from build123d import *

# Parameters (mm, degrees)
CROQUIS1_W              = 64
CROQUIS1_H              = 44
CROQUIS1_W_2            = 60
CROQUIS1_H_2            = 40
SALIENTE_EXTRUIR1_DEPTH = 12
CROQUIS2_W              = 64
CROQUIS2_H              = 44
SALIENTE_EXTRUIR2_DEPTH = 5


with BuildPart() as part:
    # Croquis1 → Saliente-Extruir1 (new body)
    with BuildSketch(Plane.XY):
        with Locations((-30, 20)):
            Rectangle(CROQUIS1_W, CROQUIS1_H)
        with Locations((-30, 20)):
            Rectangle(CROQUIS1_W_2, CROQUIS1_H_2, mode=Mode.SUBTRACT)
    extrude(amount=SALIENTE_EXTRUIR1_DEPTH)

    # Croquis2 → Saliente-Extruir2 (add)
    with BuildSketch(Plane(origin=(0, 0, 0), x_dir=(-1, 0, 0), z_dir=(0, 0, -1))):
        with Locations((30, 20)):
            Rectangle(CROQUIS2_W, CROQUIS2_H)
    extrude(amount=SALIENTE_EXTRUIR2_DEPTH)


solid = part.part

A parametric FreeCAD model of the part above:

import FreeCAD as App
import Part
import Sketcher

V = App.Vector

doc = App.newDocument("Part")
body = doc.addObject("PartDesign::Body", "Body")

sketch1 = body.newObject("Sketcher::SketchObject", "Sketch")
sketch1.AttachmentSupport = (doc.getObject("XY_Plane"), [""])
sketch1.MapMode = "FlatFace"
sketch1.addGeometry([
    Part.LineSegment(V(-62, 42, 0), V(-62, -2, 0)),
    Part.LineSegment(V(-62, -2, 0), V(2, -2, 0)),
    Part.LineSegment(V(2, -2, 0), V(2, 42, 0)),
    Part.LineSegment(V(2, 42, 0), V(-62, 42, 0)),
    Part.LineSegment(V(0, 0, 0), V(-60, 0, 0)),
    Part.LineSegment(V(-60, 0, 0), V(-60, 40, 0)),
    Part.LineSegment(V(-60, 40, 0), V(0, 40, 0)),
    Part.LineSegment(V(0, 40, 0), V(0, 0, 0)),
], False)
sketch1.addConstraint([
    Sketcher.Constraint("Coincident", 0, 2, 1, 1),
    Sketcher.Constraint("Coincident", 1, 2, 2, 1),
    Sketcher.Constraint("Coincident", 2, 2, 3, 1),
    Sketcher.Constraint("Coincident", 3, 2, 0, 1),
    Sketcher.Constraint("Coincident", 4, 2, 5, 1),
    Sketcher.Constraint("Coincident", 5, 2, 6, 1),
    Sketcher.Constraint("Coincident", 6, 2, 7, 1),
    Sketcher.Constraint("Coincident", 7, 2, 4, 1),
    Sketcher.Constraint("Vertical", 0),
    Sketcher.Constraint("Horizontal", 1),
    Sketcher.Constraint("Vertical", 2),
    Sketcher.Constraint("Horizontal", 3),
    Sketcher.Constraint("Horizontal", 4),
    Sketcher.Constraint("Vertical", 5),
    Sketcher.Constraint("Horizontal", 6),
    Sketcher.Constraint("Vertical", 7),
    Sketcher.Constraint("Coincident", 7, 2, -1, 1),
    Sketcher.Constraint("DistanceX", 1, 1, 1, 2, 64.0),
    Sketcher.Constraint("DistanceX", 4, 2, 4, 1, 60.0),
    Sketcher.Constraint("DistanceY", 0, 2, 0, 1, 44.0),
    Sketcher.Constraint("DistanceY", 5, 1, 5, 2, 40.0),
    Sketcher.Constraint("DistanceX", 0, 2, -1, 1, 62.0),
    Sketcher.Constraint("DistanceY", 0, 2, -1, 1, 2.0),
])
pad1 = body.newObject("PartDesign::Pad", "Pad")
pad1.Profile = sketch1
pad1.Length = 12

sketch2 = body.newObject("Sketcher::SketchObject", "Sketch001")
sketch2.AttachmentSupport = (doc.getObject("XY_Plane"), [""])
sketch2.MapMode = "FlatFace"
sketch2.addGeometry([
    Part.LineSegment(V(2, 42, 0), V(2, -2, 0)),
    Part.LineSegment(V(2, -2, 0), V(-62, -2, 0)),
    Part.LineSegment(V(-62, -2, 0), V(-62, 42, 0)),
    Part.LineSegment(V(-62, 42, 0), V(2, 42, 0)),
], False)
sketch2.addConstraint([
    Sketcher.Constraint("Coincident", 0, 2, 1, 1),
    Sketcher.Constraint("Coincident", 1, 2, 2, 1),
    Sketcher.Constraint("Coincident", 2, 2, 3, 1),
    Sketcher.Constraint("Coincident", 3, 2, 0, 1),
    Sketcher.Constraint("Vertical", 0),
    Sketcher.Constraint("Horizontal", 1),
    Sketcher.Constraint("Vertical", 2),
    Sketcher.Constraint("Horizontal", 3),
    Sketcher.Constraint("DistanceX", 1, 2, 1, 1, 64.0),
    Sketcher.Constraint("DistanceY", 0, 2, 0, 1, 44.0),
    Sketcher.Constraint("DistanceX", -1, 1, 0, 2, 2.0),
    Sketcher.Constraint("DistanceY", 0, 2, -1, 1, 2.0),
])
pad2 = body.newObject("PartDesign::Pad", "Pad001")
pad2.Profile = sketch2
pad2.Length = 5
pad2.Reversed = True

doc.recompute()
